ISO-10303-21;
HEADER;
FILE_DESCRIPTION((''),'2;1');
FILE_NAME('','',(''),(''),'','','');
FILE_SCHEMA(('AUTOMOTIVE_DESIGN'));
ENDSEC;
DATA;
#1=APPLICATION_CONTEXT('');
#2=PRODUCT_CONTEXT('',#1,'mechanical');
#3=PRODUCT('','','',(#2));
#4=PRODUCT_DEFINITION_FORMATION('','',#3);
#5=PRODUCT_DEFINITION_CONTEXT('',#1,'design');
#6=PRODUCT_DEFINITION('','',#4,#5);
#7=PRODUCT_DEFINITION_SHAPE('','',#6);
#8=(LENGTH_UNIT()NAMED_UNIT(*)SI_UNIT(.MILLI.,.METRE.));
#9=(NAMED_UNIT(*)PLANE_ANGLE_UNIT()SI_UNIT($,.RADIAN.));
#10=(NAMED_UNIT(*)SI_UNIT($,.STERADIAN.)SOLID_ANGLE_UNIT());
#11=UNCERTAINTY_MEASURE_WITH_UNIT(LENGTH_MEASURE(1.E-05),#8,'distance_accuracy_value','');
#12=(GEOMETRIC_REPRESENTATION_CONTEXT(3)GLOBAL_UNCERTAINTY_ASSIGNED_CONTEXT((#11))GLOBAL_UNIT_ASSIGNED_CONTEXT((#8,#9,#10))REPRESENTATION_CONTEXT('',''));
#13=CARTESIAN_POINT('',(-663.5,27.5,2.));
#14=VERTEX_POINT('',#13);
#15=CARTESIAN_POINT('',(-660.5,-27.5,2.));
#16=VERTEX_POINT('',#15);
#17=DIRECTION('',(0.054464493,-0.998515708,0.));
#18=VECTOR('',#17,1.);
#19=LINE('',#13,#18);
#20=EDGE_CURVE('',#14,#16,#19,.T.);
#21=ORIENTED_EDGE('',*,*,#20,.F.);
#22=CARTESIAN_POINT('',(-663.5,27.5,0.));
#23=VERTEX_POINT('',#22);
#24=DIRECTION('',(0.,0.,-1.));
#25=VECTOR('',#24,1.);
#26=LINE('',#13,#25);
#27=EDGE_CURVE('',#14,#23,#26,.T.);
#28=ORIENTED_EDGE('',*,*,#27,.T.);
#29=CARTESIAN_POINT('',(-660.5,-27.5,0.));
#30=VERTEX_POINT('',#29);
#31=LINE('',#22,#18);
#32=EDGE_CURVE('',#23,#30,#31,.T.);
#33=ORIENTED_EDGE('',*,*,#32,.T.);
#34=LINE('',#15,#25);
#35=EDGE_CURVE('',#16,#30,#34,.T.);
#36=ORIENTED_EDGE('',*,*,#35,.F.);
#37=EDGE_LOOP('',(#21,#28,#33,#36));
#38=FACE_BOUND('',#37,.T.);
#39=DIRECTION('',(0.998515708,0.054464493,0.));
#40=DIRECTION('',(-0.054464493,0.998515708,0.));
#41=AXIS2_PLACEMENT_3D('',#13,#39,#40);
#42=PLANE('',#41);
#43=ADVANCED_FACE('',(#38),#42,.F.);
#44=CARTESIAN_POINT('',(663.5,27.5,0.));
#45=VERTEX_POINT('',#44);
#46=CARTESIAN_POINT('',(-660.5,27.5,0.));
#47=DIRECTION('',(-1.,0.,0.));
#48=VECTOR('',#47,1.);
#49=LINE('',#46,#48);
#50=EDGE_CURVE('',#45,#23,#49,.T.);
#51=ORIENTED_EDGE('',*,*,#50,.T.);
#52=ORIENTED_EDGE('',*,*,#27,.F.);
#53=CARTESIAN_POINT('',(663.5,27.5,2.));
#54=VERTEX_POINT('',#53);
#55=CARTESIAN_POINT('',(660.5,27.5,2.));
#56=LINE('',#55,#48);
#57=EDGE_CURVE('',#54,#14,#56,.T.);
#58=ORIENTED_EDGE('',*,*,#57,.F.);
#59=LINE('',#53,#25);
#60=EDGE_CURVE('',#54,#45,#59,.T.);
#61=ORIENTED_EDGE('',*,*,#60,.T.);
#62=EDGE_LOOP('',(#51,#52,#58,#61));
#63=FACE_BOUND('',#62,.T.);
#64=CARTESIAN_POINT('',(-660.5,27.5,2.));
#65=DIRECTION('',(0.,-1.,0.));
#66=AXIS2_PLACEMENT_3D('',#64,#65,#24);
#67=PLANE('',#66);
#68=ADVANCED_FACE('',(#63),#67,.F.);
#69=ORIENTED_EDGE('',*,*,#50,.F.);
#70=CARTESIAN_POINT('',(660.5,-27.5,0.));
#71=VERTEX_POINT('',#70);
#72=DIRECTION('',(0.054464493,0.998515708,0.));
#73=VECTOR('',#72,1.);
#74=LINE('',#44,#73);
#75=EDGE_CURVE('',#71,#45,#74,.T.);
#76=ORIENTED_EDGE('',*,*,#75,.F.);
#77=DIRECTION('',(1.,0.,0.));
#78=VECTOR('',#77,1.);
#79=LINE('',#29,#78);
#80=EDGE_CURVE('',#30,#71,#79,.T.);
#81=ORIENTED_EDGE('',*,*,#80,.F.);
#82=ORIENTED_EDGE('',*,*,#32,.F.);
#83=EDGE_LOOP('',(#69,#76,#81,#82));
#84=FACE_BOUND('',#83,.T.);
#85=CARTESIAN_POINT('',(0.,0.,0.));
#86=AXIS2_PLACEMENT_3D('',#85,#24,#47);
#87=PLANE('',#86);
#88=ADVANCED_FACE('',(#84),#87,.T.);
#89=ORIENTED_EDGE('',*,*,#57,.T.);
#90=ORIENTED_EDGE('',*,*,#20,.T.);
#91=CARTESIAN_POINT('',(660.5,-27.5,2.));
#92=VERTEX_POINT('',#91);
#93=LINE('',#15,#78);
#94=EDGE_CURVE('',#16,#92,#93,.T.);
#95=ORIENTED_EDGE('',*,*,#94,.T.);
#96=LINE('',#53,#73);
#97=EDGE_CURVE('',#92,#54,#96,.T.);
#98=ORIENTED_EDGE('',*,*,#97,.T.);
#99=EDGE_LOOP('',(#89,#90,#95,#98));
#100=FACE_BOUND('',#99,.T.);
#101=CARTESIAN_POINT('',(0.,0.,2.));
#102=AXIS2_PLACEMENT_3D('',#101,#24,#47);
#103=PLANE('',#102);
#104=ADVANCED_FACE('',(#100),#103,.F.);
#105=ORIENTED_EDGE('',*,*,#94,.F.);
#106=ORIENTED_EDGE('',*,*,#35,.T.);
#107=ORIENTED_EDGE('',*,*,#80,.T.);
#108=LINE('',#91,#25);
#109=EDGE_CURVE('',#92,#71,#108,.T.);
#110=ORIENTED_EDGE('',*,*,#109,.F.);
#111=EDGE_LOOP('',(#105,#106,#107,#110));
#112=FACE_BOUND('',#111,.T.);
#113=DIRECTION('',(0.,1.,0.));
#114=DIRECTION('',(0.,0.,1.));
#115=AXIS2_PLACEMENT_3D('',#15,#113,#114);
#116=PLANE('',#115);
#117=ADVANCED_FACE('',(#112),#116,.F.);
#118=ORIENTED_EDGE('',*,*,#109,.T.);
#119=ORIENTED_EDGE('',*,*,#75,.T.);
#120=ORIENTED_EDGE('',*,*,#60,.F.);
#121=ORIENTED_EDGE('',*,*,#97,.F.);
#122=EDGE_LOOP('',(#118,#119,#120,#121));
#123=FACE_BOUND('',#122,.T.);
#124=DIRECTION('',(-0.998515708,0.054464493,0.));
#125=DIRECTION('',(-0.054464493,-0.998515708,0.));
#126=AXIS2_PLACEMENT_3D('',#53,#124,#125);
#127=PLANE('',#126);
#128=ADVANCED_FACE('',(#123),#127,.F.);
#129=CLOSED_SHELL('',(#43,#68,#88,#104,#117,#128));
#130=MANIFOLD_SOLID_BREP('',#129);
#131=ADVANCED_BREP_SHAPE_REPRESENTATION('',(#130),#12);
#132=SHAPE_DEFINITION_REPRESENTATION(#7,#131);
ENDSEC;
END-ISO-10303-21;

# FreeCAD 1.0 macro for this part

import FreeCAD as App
import Part
import Sketcher

V = App.Vector

doc = App.newDocument("Part")
body = doc.addObject("PartDesign::Body", "Body")

sketch1 = body.newObject("Sketcher::SketchObject", "Sketch")
sketch1.AttachmentSupport = (doc.getObject("XY_Plane"), [""])
sketch1.MapMode = "FlatFace"
sketch1.addGeometry([
    Part.LineSegment(V(-663.5, 27.5, 0), V(-660.5, -27.5, 0)),
    Part.LineSegment(V(-660.5, -27.5, 0), V(660.5, -27.5, 0)),
    Part.LineSegment(V(660.5, -27.5, 0), V(663.5, 27.5, 0)),
    Part.LineSegment(V(663.5, 27.5, 0), V(-663.5, 27.5, 0)),
], False)
sketch1.addConstraint([
    Sketcher.Constraint("Coincident", 0, 2, 1, 1),
    Sketcher.Constraint("Coincident", 1, 2, 2, 1),
    Sketcher.Constraint("Coincident", 2, 2, 3, 1),
    Sketcher.Constraint("Coincident", 3, 2, 0, 1),
    Sketcher.Constraint("Horizontal", 1),
    Sketcher.Constraint("Horizontal", 3),
    Sketcher.Constraint("Equal", 0, 2),
    Sketcher.Constraint("DistanceX", 1, 1, 1, 2, 1321.0),
    Sketcher.Constraint("DistanceX", 3, 2, 3, 1, 1327.0),
    Sketcher.Constraint("DistanceY", 1, 2, 2, 2, 55.0),
    Sketcher.Constraint("DistanceX", 0, 2, -1, 1, 660.5),
    Sketcher.Constraint("DistanceY", 0, 2, -1, 1, 27.5),
])
pad1 = body.newObject("PartDesign::Pad", "Pad")
pad1.Profile = sketch1
pad1.Length = 2

doc.recompute()
